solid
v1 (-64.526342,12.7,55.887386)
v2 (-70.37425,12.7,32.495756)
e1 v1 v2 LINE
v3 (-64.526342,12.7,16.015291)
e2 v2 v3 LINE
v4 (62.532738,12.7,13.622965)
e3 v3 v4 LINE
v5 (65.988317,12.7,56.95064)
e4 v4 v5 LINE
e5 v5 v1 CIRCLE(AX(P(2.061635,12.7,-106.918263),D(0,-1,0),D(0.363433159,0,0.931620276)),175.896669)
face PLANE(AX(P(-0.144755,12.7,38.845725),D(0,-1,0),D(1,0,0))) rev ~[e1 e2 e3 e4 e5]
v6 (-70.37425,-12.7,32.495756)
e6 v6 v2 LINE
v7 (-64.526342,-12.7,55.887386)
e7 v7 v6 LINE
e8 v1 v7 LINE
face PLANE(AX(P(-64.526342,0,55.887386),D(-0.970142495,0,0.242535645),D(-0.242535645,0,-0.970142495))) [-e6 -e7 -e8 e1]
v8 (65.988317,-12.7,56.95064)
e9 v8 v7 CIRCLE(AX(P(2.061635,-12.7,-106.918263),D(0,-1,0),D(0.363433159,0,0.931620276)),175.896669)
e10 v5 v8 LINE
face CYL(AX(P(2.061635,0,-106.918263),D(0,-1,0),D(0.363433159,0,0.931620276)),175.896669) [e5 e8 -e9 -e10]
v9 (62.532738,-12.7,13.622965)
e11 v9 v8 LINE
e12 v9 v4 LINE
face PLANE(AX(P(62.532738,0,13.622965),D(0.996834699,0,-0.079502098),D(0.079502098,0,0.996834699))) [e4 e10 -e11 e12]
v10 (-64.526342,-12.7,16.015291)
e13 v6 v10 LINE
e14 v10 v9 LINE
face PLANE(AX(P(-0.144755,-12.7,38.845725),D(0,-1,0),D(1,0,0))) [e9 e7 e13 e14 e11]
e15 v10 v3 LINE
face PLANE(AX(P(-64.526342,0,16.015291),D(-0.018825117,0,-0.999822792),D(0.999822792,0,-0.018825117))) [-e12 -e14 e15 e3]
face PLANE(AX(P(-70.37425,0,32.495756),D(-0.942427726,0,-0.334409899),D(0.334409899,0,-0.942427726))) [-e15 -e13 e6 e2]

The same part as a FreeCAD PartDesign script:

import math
import FreeCAD as App
import Part
import Sketcher

V = App.Vector

doc = App.newDocument("Part")
params = doc.addObject("Spreadsheet::Sheet", "Params")
for row, (alias, value) in enumerate([
    ("pad1_length", "1 in"),
], start=1):
    params.set(f"A{row}", alias)
    params.set(f"B{row}", "=" + value)
    params.setAlias(f"B{row}", alias)

body = doc.addObject("PartDesign::Body", "Body")

sketch1 = body.newObject("Sketcher::SketchObject", "Sketch")
sketch1.AttachmentSupport = (doc.getObject("XZ_Plane"), [""])
sketch1.MapMode = "FlatFace"
sketch1.addGeometry([
    Part.LineSegment(V(62.532738, 13.622965, 0), V(65.988317, 56.95064, 0)),
    Part.ArcOfCircle(Part.Circle(V(2.061635, -106.918263, 0), V(0, 0, 1), 175.896669), math.radians(68.688812), math.radians(112.244702)),
    Part.LineSegment(V(-64.526342, 55.887386, 0), V(-70.37425, 32.495756, 0)),
    Part.LineSegment(V(-70.37425, 32.495756, 0), V(-64.526342, 16.015291, 0)),
    Part.LineSegment(V(-64.526342, 16.015291, 0), V(62.532738, 13.622965, 0)),
], False)
sketch1.addConstraint([
    Sketcher.Constraint("Coincident", 0, 2, 1, 1),
    Sketcher.Constraint("Coincident", 1, 2, 2, 1),
    Sketcher.Constraint("Coincident", 2, 2, 3, 1),
    Sketcher.Constraint("Coincident", 3, 2, 4, 1),
    Sketcher.Constraint("Coincident", 4, 2, 0, 1),
    Sketcher.Constraint("Vertical", 1, 2, 3, 2),
    Sketcher.Constraint("Radius", 1, 175.896669),
    Sketcher.Constraint("Distance", 4, 127.0816),
    Sketcher.Constraint("Distance", 2, 24.11154),
    Sketcher.Constraint("DistanceY", -1, 1, 0, 2, 56.95064),
    Sketcher.Constraint("DistanceX", 2, 2, -1, 1, 70.37425),
    Sketcher.Constraint("DistanceX", 3, 2, -1, 1, 64.526342),
    Sketcher.Constraint("DistanceY", -1, 1, 3, 2, 16.015291),
    Sketcher.Constraint("DistanceX", -1, 1, 4, 2, 62.532738),
    Sketcher.Constraint("DistanceX", 1, 3, 0, 2, 63.926682),
    Sketcher.Constraint("DistanceX", 1, 2, 0, 2, 130.514659),
])
pad1 = body.newObject("PartDesign::Pad", "Pad")
pad1.Profile = sketch1
pad1.setExpression("Length", "Params.pad1_length")
pad1.Midplane = True

doc.recompute()
